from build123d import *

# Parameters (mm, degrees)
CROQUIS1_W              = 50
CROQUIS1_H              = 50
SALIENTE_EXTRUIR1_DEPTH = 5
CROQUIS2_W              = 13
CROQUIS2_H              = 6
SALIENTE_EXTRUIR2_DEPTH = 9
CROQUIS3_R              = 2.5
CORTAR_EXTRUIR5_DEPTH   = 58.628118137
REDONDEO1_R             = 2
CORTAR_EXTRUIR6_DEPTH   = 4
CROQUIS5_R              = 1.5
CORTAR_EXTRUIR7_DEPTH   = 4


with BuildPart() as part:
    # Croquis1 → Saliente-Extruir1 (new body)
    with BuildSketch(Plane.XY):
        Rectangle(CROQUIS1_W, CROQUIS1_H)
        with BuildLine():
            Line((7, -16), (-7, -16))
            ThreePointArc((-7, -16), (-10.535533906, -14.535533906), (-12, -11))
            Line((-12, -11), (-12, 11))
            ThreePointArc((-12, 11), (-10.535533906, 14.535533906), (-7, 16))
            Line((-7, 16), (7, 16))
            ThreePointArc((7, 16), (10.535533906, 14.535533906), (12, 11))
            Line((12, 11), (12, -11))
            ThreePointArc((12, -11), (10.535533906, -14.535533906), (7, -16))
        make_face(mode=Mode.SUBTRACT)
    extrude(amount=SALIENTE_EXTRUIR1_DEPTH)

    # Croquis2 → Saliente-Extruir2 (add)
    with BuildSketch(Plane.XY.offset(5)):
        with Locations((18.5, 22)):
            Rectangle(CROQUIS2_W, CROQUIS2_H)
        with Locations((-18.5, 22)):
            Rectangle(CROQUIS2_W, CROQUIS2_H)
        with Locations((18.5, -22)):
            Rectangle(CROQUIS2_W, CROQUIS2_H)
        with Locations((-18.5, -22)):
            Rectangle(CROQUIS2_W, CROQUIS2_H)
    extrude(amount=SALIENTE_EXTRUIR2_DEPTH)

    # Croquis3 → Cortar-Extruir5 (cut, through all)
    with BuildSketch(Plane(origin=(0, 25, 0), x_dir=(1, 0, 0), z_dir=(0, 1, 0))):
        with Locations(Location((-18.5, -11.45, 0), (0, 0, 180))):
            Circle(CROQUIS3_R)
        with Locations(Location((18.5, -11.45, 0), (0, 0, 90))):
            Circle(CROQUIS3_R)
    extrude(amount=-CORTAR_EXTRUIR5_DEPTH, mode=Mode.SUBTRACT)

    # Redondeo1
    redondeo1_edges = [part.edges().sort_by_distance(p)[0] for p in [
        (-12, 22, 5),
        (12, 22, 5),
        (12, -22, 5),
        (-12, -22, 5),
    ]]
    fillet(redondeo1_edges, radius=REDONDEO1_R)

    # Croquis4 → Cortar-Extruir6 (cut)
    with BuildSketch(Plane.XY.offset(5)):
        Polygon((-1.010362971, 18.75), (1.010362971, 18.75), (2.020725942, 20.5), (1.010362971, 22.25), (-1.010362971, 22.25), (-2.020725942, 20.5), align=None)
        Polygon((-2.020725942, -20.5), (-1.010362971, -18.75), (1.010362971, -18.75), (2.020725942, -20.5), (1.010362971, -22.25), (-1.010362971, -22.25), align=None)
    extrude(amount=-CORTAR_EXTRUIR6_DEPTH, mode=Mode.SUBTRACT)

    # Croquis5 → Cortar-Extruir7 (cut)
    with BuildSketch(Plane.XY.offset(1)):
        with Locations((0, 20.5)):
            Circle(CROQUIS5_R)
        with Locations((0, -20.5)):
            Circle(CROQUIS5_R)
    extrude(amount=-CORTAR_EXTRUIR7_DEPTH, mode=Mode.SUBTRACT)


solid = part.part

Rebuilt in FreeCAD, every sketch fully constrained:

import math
import FreeCAD as App
import Part
import Sketcher
from FreeCAD import Vector
Q = App.Units.Quantity


def edges_at(feature, points):
    """Names of the edges that pass closest to the given points."""
    edges = feature.Shape.Edges
    near = lambda p: min(range(len(edges)), key=lambda i: edges[i].distToShape(Part.Vertex(*p))[0])
    return sorted({f"Edge{near(p) + 1}" for p in points})

doc = App.newDocument("Part")
params = doc.addObject("Spreadsheet::Sheet", "Params")
for row, (alias, value) in enumerate([
    ("sketch1_radius", "5 mm"),
    ("sketch1_width", "50 mm"),
    ("sketch1_width2", "14 mm"),
    ("sketch1_height", "22 mm"),
    ("pad1_length", "5 mm"),
    ("sketch2_width", "13 mm"),
    ("sketch2_height", "6 mm"),
    ("pad2_length", "9 mm"),
    ("sketch3_diameter", "5 mm"),
    ("fillet_radius", "2 mm"),
    ("pocket2_length", "4 mm"),
    ("sketch5_diameter", "3 mm"),
    ("pocket3_length", "4 mm"),
], start=1):
    params.set(f"A{row}", alias)
    params.set(f"B{row}", "=" + value)
    params.setAlias(f"B{row}", alias)

body = doc.addObject("PartDesign::Body", "Body")

# Sketch on XY plane
sketch1 = body.newObject("Sketcher::SketchObject", "Sketch")
sketch1.AttachmentSupport = (doc.getObject("XY_Plane"), [""])
sketch1.MapMode = "FlatFace"
sketch1.addGeometry([
    Part.LineSegment(Vector(-25, 25, 0), Vector(-25, -25, 0)),  # 0
    Part.LineSegment(Vector(-25, -25, 0), Vector(25, -25, 0)),  # 1
    Part.LineSegment(Vector(25, -25, 0), Vector(25, 25, 0)),  # 2
    Part.LineSegment(Vector(25, 25, 0), Vector(-25, 25, 0)),  # 3
    Part.ArcOfCircle(Part.Circle(Vector(7, -11, 0), Vector(0, 0, 1), 5), math.radians(-90), math.radians(0)),  # 4
    Part.LineSegment(Vector(7, -16, 0), Vector(-7, -16, 0)),  # 5
    Part.ArcOfCircle(Part.Circle(Vector(-7, -11, 0), Vector(0, 0, 1), 5), math.radians(180), math.radians(270)),  # 6
    Part.LineSegment(Vector(-12, -11, 0), Vector(-12, 11, 0)),  # 7
    Part.ArcOfCircle(Part.Circle(Vector(-7, 11, 0), Vector(0, 0, 1), 5), math.radians(90), math.radians(180)),  # 8
    Part.LineSegment(Vector(-7, 16, 0), Vector(7, 16, 0)),  # 9
    Part.ArcOfCircle(Part.Circle(Vector(7, 11, 0), Vector(0, 0, 1), 5), math.radians(0), math.radians(90)),  # 10
    Part.LineSegment(Vector(12, 11, 0), Vector(12, -11, 0)),  # 11
], False)
sketch1.addConstraint([
    Sketcher.Constraint("Coincident", 0, 2, 1, 1),
    Sketcher.Constraint("Coincident", 1, 2, 2, 1),
    Sketcher.Constraint("Coincident", 2, 2, 3, 1),
    Sketcher.Constraint("Coincident", 3, 2, 0, 1),
    Sketcher.Constraint("Tangent", 4, 1, 5, 1),
    Sketcher.Constraint("Tangent", 5, 2, 6, 2),
    Sketcher.Constraint("Tangent", 6, 1, 7, 1),
    Sketcher.Constraint("Tangent", 7, 2, 8, 2),
    Sketcher.Constraint("Tangent", 8, 1, 9, 1),
    Sketcher.Constraint("Tangent", 9, 2, 10, 2),
    Sketcher.Constraint("Tangent", 10, 1, 11, 1),
    Sketcher.Constraint("Tangent", 11, 2, 4, 2),
    Sketcher.Constraint("Vertical", 0),
    Sketcher.Constraint("Horizontal", 1),
    Sketcher.Constraint("Vertical", 2),
    Sketcher.Constraint("Horizontal", 3),
    Sketcher.Constraint("Horizontal", 5),
    Sketcher.Constraint("Vertical", 7),
    Sketcher.Constraint("Horizontal", 9),
    Sketcher.Constraint("Vertical", 11),
    Sketcher.Constraint("Equal", 4, 6),
    Sketcher.Constraint("Equal", 6, 8),
    Sketcher.Constraint("Equal", 8, 10),
    Sketcher.Constraint("Symmetric", 4, 3, 8, 3, -1, 1),
    Sketcher.Constraint("Symmetric", 0, 2, 2, 2, -1, 1),
    Sketcher.Constraint("Equal", 3, 0),
    Sketcher.Constraint("Radius", 4, 5.0),
    Sketcher.Constraint("DistanceX", 1, 1, 1, 2, 50.0),
    Sketcher.Constraint("DistanceX", 5, 2, 5, 1, 14.0),
    Sketcher.Constraint("DistanceY", 7, 1, 7, 2, 22.0),
])
sketch1.setExpression("Constraints[26]", "Params.sketch1_radius")
sketch1.setExpression("Constraints[27]", "Params.sketch1_width")
sketch1.setExpression("Constraints[28]", "Params.sketch1_width2")
sketch1.setExpression("Constraints[29]", "Params.sketch1_height")
pad1 = body.newObject("PartDesign::Pad", "Pad")
pad1.Profile = sketch1
pad1.setExpression("Length", "Params.pad1_length")

# Sketch on XY plane
sketch2 = body.newObject("Sketcher::SketchObject", "Sketch001")
sketch2.AttachmentSupport = (doc.getObject("XY_Plane"), [""])
sketch2.MapMode = "FlatFace"
sketch2.AttachmentOffset = App.Placement(Vector(0, 0, 5), App.Rotation())
sketch2.addGeometry([
    Part.LineSegment(Vector(12, 25, 0), Vector(12, 19, 0)),  # 0
    Part.LineSegment(Vector(12, 19, 0), Vector(25, 19, 0)),  # 1
    Part.LineSegment(Vector(25, 19, 0), Vector(25, 25, 0)),  # 2
    Part.LineSegment(Vector(25, 25, 0), Vector(12, 25, 0)),  # 3
    Part.LineSegment(Vector(-25, 25, 0), Vector(-25, 19, 0)),  # 4
    Part.LineSegment(Vector(-25, 19, 0), Vector(-12, 19, 0)),  # 5
    Part.LineSegment(Vector(-12, 19, 0), Vector(-12, 25, 0)),  # 6
    Part.LineSegment(Vector(-12, 25, 0), Vector(-25, 25, 0)),  # 7
    Part.LineSegment(Vector(12, -19, 0), Vector(12, -25, 0)),  # 8
    Part.LineSegment(Vector(12, -25, 0), Vector(25, -25, 0)),  # 9
    Part.LineSegment(Vector(25, -25, 0), Vector(25, -19, 0)),  # 10
    Part.LineSegment(Vector(25, -19, 0), Vector(12, -19, 0)),  # 11
    Part.LineSegment(Vector(-25, -19, 0), Vector(-25, -25, 0)),  # 12
    Part.LineSegment(Vector(-25, -25, 0), Vector(-12, -25, 0)),  # 13
    Part.LineSegment(Vector(-12, -25, 0), Vector(-12, -19, 0)),  # 14
    Part.LineSegment(Vector(-12, -19, 0), Vector(-25, -19, 0)),  # 15
], False)
sketch2.addConstraint([
    Sketcher.Constraint("Coincident", 0, 2, 1, 1),
    Sketcher.Constraint("Coincident", 1, 2, 2, 1),
    Sketcher.Constraint("Coincident", 2, 2, 3, 1),
    Sketcher.Constraint("Coincident", 3, 2, 0, 1),
    Sketcher.Constraint("Coincident", 4, 2, 5, 1),
    Sketcher.Constraint("Coincident", 5, 2, 6, 1),
    Sketcher.Constraint("Coincident", 6, 2, 7, 1),
    Sketcher.Constraint("Coincident", 7, 2, 4, 1),
    Sketcher.Constraint("Coincident", 8, 2, 9, 1),
    Sketcher.Constraint("Coincident", 9, 2, 10, 1),
    Sketcher.Constraint("Coincident", 10, 2, 11, 1),
    Sketcher.Constraint("Coincident", 11, 2, 8, 1),
    Sketcher.Constraint("Coincident", 12, 2, 13, 1),
    Sketcher.Constraint("Coincident", 13, 2, 14, 1),
    Sketcher.Constraint("Coincident", 14, 2, 15, 1),
    Sketcher.Constraint("Coincident", 15, 2, 12, 1),
    Sketcher.Constraint("Vertical", 0),
    Sketcher.Constraint("Horizontal", 1),
    Sketcher.Constraint("Vertical", 2),
    Sketcher.Constraint("Horizontal", 3),
    Sketcher.Constraint("Vertical", 4),
    Sketcher.Constraint("Horizontal", 5),
    Sketcher.Constraint("Vertical", 6),
    Sketcher.Constraint("Horizontal", 7),
    Sketcher.Constraint("Vertical", 8),
    Sketcher.Constraint("Horizontal", 9),
    Sketcher.Constraint("Vertical", 10),
    Sketcher.Constraint("Horizontal", 11),
    Sketcher.Constraint("Vertical", 12),
    Sketcher.Constraint("Horizontal", 13),
    Sketcher.Constraint("Vertical", 14),
    Sketcher.Constraint("Horizontal", 15),
    Sketcher.Constraint("Symmetric", 6, 2, 8, 2, -1, 1),
    Sketcher.Constraint("Symmetric", 4, 2, 10, 2, -1, 1),
    Sketcher.Constraint("Symmetric", 2, 2, 12, 2, -1, 1),
    Sketcher.Constraint("Symmetric", 0, 2, 14, 2, -1, 1),
    Sketcher.Constraint("Symmetric", 1, 2, 4, 2, -2),
    Sketcher.Constraint("Symmetric", 3, 2, 6, 2, -2),
    Sketcher.Constraint("DistanceX", 1, 1, 1, 2, 13.0),
    Sketcher.Constraint("DistanceY", 0, 2, 0, 1, 6.0),
    Sketcher.Constraint("DistanceX", -1, 1, 0, 2, 12.0),
    Sketcher.Constraint("DistanceY", -1, 1, 0, 2, 19.0),
])
sketch2.setExpression("Constraints[38]", "Params.sketch2_width")
sketch2.setExpression("Constraints[39]", "Params.sketch2_height")
pad2 = body.newObject("PartDesign::Pad", "Pad001")
pad2.Profile = sketch2
pad2.setExpression("Length", "Params.pad2_length")

# Sketch on XZ plane
sketch3 = body.newObject("Sketcher::SketchObject", "Sketch002")
sketch3.AttachmentSupport = (doc.getObject("XZ_Plane"), [""])
sketch3.MapMode = "FlatFace"
sketch3.AttachmentOffset = App.Placement(Vector(0, 0, -25), App.Rotation())
sketch3.addGeometry([
    Part.Circle(Vector(-18.5, 11.4, 0), Vector(0, 0, 1), 2.5),
    Part.Circle(Vector(18.5, 11.4, 0), Vector(0, 0, 1), 2.5),
], False)
sketch3.addConstraint([
    Sketcher.Constraint("Equal", 0, 1),
    Sketcher.Constraint("Symmetric", 0, 3, 1, 3, -2),
    Sketcher.Constraint("Diameter", 0, 5.0),
    Sketcher.Constraint("DistanceX", 0, 3, 1, 3, 37.0),
    Sketcher.Constraint("DistanceY", -1, 1, 0, 3, 11.45),
])
sketch3.setExpression("Constraints[2]", "Params.sketch3_diameter")
pocket1 = body.newObject("PartDesign::Pocket", "Pocket")
pocket1.Profile = sketch3
pocket1.Type = "ThroughAll"
pocket1.Reversed = True
doc.recompute()

fillet = body.newObject("PartDesign::Fillet", "Fillet")
fillet.Base = (pocket1, edges_at(pocket1, [
    (-12, 22, 5),
    (12, 22, 5),
    (12, -22, 5),
    (-12, -22, 5),
]))
fillet.setExpression("Radius", "Params.fillet_radius")

# Sketch on XY plane
sketch4 = body.newObject("Sketcher::SketchObject", "Sketch003")
sketch4.AttachmentSupport = (doc.getObject("XY_Plane"), [""])
sketch4.MapMode = "FlatFace"
sketch4.AttachmentOffset = App.Placement(Vector(0, 0, 5), App.Rotation())
sketch4.addGeometry([
    Part.LineSegment(Vector(-1, 18.8, 0), Vector(1, 18.8, 0)),  # 0
    Part.LineSegment(Vector(1, 18.8, 0), Vector(2, 20.5, 0)),  # 1
    Part.LineSegment(Vector(2, 20.5, 0), Vector(1, 22.2, 0)),  # 2
    Part.LineSegment(Vector(1, 22.2, 0), Vector(-1, 22.2, 0)),  # 3
    Part.LineSegment(Vector(-1, 22.2, 0), Vector(-2, 20.5, 0)),  # 4
    Part.LineSegment(Vector(-2, 20.5, 0), Vector(-1, 18.8, 0)),  # 5
    Part.LineSegment(Vector(-1, -18.8, 0), Vector(-2, -20.5, 0)),  # 6
    Part.LineSegment(Vector(-2, -20.5, 0), Vector(-1, -22.2, 0)),  # 7
    Part.LineSegment(Vector(-1, -22.2, 0), Vector(1, -22.2, 0)),  # 8
    Part.LineSegment(Vector(1, -22.2, 0), Vector(2, -20.5, 0)),  # 9
    Part.LineSegment(Vector(2, -20.5, 0), Vector(1, -18.8, 0)),  # 10
    Part.LineSegment(Vector(1, -18.8, 0), Vector(-1, -18.8, 0)),  # 11
], False)
sketch4.addConstraint([
    Sketcher.Constraint("Coincident", 0, 2, 1, 1),
    Sketcher.Constraint("Coincident", 1, 2, 2, 1),
    Sketcher.Constraint("Coincident", 2, 2, 3, 1),
    Sketcher.Constraint("Coincident", 3, 2, 4, 1),
    Sketcher.Constraint("Coincident", 4, 2, 5, 1),
    Sketcher.Constraint("Coincident", 5, 2, 0, 1),
    Sketcher.Constraint("Coincident", 6, 2, 7, 1),
    Sketcher.Constraint("Coincident", 7, 2, 8, 1),
    Sketcher.Constraint("Coincident", 8, 2, 9, 1),
    Sketcher.Constraint("Coincident", 9, 2, 10, 1),
    Sketcher.Constraint("Coincident", 10, 2, 11, 1),
    Sketcher.Constraint("Coincident", 11, 2, 6, 1),
    Sketcher.Constraint("Horizontal", 0),
    Sketcher.Constraint("Horizontal", 3),
    Sketcher.Constraint("Horizontal", 8),
    Sketcher.Constraint("Horizontal", 11),
    Sketcher.Constraint("Symmetric", 1, 2, 6, 2, -1, 1),
    Sketcher.Constraint("Symmetric", 2, 2, 7, 2, -1, 1),
    Sketcher.Constraint("Symmetric", 4, 2, 9, 2, -1, 1),
    Sketcher.Constraint("Symmetric", 5, 2, 10, 2, -1, 1),
    Sketcher.Constraint("Symmetric", 1, 2, 4, 2, -2),
    Sketcher.Constraint("Parallel", 1, 4),
    Sketcher.Constraint("Parallel", 2, 5),
    Sketcher.Constraint("Parallel", 4, 6),
    Sketcher.Constraint("Parallel", 6, 9),
    Sketcher.Constraint("Vertical", 0, 2, 2, 2),
    Sketcher.Constraint("Vertical", 3, 2, 5, 2),
    Sketcher.Constraint("Angle", 1, Q("60 deg")),
    Sketcher.Constraint("DistanceY", 6, 2, 4, 2, 41.0),
    Sketcher.Constraint("DistanceY", 0, 2, 2, 2, 3.5),
    Sketcher.Constraint("DistanceX", 0, 1, 0, 2, 2.020726),
])
pocket2 = body.newObject("PartDesign::Pocket", "Pocket001")
pocket2.Profile = sketch4
pocket2.setExpression("Length", "Params.pocket2_length")

# Sketch on XY plane
sketch5 = body.newObject("Sketcher::SketchObject", "Sketch004")
sketch5.AttachmentSupport = (doc.getObject("XY_Plane"), [""])
sketch5.MapMode = "FlatFace"
sketch5.AttachmentOffset = App.Placement(Vector(0, 0, 1), App.Rotation())
sketch5.addGeometry([
    Part.Circle(Vector(0, 20.5, 0), Vector(0, 0, 1), 1.5),
    Part.Circle(Vector(0, -20.5, 0), Vector(0, 0, 1), 1.5),
], False)
sketch5.addConstraint([
    Sketcher.Constraint("Equal", 0, 1),
    Sketcher.Constraint("Symmetric", 0, 3, 1, 3, -1, 1),
    Sketcher.Constraint("PointOnObject", 0, 3, -2),
    Sketcher.Constraint("Diameter", 0, 3.0),
    Sketcher.Constraint("DistanceY", 1, 3, 0, 3, 41.0),
])
sketch5.setExpression("Constraints[3]", "Params.sketch5_diameter")
pocket3 = body.newObject("PartDesign::Pocket", "Pocket002")
pocket3.Profile = sketch5
pocket3.setExpression("Length", "Params.pocket3_length")

doc.recompute()
